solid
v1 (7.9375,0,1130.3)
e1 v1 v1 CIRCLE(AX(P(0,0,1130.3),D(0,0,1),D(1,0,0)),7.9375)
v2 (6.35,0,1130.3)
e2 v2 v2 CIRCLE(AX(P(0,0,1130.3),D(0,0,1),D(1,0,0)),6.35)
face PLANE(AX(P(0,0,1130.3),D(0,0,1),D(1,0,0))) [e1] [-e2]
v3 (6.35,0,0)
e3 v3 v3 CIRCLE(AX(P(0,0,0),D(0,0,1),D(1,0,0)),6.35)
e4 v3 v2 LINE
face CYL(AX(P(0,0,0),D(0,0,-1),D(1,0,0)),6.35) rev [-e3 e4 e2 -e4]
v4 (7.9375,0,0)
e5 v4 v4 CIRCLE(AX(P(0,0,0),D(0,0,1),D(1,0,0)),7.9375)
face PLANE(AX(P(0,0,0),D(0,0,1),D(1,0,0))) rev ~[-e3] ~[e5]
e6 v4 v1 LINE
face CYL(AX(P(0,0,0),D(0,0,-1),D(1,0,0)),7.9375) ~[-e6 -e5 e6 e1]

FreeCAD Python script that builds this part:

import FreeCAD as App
import Part
import Sketcher
from FreeCAD import Vector
Q = App.Units.Quantity

doc = App.newDocument("Part")
body = doc.addObject("PartDesign::Body", "Body")

# Sketch on XY plane
sketch1 = doc.addObject("Sketcher::SketchObject", "Sketch")
body.addObject(sketch1)
sketch1.AttachmentSupport = (doc.XY_Plane, [""])
sketch1.MapMode = "FlatFace"
sketch1.addGeometry([
    Part.Circle(Vector(0, 0, 0), Vector(0, 0, 1), 8),
    Part.Circle(Vector(0, 0, 0), Vector(0, 0, 1), 6),
], False)
sketch1.addConstraint([
    Sketcher.Constraint("Coincident", 0, 3, -1, 1),
    Sketcher.Constraint("Coincident", 1, 3, -1, 1),
    Sketcher.Constraint("Diameter", 1, Q("0.5 in")),
    Sketcher.Constraint("Diameter", 0, Q("0.625 in")),
])
pad1 = doc.addObject("PartDesign::Pad", "Pad")
body.addObject(pad1)
pad1.Profile = sketch1
pad1.Length = Q("44.5 in")

doc.recompute()
